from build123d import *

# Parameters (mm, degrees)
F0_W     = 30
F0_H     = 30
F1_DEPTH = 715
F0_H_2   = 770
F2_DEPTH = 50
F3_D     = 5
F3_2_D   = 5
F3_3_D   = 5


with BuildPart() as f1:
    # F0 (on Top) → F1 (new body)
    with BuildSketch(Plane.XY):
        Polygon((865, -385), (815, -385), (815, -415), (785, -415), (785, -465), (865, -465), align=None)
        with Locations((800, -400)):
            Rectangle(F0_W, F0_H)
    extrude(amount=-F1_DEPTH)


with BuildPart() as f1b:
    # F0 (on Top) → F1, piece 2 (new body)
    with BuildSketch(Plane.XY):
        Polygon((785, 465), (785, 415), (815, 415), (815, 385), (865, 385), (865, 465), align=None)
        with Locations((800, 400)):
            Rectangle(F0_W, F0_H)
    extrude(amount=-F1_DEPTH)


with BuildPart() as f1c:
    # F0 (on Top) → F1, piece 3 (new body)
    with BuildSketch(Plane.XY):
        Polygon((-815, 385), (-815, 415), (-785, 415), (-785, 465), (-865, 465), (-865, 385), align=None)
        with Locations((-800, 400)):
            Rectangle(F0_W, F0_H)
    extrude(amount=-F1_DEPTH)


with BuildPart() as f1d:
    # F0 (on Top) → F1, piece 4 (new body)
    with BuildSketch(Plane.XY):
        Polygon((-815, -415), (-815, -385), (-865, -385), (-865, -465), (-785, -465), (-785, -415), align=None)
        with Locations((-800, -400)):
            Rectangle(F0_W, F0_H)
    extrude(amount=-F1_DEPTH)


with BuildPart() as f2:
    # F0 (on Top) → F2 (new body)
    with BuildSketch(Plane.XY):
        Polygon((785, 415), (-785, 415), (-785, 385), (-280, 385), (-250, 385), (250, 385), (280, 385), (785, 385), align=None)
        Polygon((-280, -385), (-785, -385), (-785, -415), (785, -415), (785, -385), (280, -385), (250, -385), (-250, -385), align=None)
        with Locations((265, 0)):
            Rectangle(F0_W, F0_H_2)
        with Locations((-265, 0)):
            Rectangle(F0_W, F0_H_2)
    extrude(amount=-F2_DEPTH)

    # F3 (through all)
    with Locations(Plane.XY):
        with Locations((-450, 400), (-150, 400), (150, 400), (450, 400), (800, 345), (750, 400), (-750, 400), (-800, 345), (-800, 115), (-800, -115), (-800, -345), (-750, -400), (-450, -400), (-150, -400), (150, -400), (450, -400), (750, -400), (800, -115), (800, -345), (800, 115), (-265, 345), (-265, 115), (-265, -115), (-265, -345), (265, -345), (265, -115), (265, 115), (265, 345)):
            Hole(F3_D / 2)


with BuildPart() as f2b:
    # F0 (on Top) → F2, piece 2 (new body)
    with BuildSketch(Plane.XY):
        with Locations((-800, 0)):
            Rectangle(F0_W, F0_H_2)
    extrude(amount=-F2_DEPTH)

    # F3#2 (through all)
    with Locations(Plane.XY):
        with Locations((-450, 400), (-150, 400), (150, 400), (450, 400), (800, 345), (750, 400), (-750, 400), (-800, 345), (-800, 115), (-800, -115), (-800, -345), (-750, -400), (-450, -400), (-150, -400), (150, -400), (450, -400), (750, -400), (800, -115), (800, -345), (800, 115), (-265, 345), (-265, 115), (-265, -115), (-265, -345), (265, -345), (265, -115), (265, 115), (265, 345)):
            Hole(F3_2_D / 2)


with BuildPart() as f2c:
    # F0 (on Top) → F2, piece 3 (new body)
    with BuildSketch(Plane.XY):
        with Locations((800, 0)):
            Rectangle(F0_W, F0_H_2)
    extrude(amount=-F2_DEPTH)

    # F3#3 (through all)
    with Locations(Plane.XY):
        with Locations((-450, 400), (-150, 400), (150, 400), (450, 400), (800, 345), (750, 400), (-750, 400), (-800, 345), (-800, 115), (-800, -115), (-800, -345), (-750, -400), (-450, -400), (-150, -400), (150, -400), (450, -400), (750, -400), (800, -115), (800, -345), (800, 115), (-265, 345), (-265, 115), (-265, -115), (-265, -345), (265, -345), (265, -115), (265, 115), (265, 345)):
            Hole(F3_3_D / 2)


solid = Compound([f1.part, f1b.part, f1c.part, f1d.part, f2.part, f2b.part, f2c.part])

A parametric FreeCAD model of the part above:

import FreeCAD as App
import Part
import Sketcher

V = App.Vector
Q = App.Units.Quantity


def add_polygon(sketch, points):
    """Adds a closed chain of lines whose ends are joined by coincident constraints."""
    first, n = sketch.GeometryCount, len(points)
    for a, b in zip(points, points[1:] + points[:1]):
        sketch.addGeometry(Part.LineSegment(App.Vector(*a, 0), App.Vector(*b, 0)), False)
    for i in range(n):
        sketch.addConstraint(Sketcher.Constraint("Coincident", first + i, 2, first + (i + 1) % n, 1))

doc = App.newDocument("Part")
body = doc.addObject("PartDesign::Body", "Body")

# Sketch on XY plane
sketch1 = doc.addObject("Sketcher::SketchObject", "Sketch")
body.addObject(sketch1)
sketch1.AttachmentSupport = (doc.XY_Plane, [""])
sketch1.MapMode = "FlatFace"
add_polygon(sketch1, [(865, -385), (785, -385), (785, -465), (865, -465)])  # lines 0-3
sketch1.addConstraint(Sketcher.Constraint("Horizontal", 0))
sketch1.addConstraint(Sketcher.Constraint("Vertical", 1))
sketch1.addConstraint(Sketcher.Constraint("Horizontal", 2))
sketch1.addConstraint(Sketcher.Constraint("Vertical", 3))
sketch1.addConstraint(Sketcher.Constraint("Equal", 2, 1))
sketch1.addConstraint(Sketcher.Constraint("DistanceX", 0, 2, 0, 1, Q("80 mm")))
sketch1.addConstraint(Sketcher.Constraint("DistanceX", -1, 1, 0, 2, Q("785 mm")))
sketch1.addConstraint(Sketcher.Constraint("DistanceY", 0, 2, -1, 1, Q("385 mm")))
pad1 = doc.addObject("PartDesign::Pad", "Pad")
body.addObject(pad1)
pad1.Profile = sketch1
pad1.Length = 715
pad1.Reversed = True
body2 = doc.addObject("PartDesign::Body", "Body001")

# Sketch on XY plane
sketch2 = doc.addObject("Sketcher::SketchObject", "Sketch001")
body2.addObject(sketch2)
sketch2.AttachmentSupport = (doc.getObject("XY_Plane001"), [""])
sketch2.MapMode = "FlatFace"
add_polygon(sketch2, [(785, 465), (785, 385), (865, 385), (865, 465)])  # lines 0-3
sketch2.addConstraint(Sketcher.Constraint("Vertical", 0))
sketch2.addConstraint(Sketcher.Constraint("Horizontal", 1))
sketch2.addConstraint(Sketcher.Constraint("Vertical", 2))
sketch2.addConstraint(Sketcher.Constraint("Horizontal", 3))
sketch2.addConstraint(Sketcher.Constraint("Equal", 3, 0))
sketch2.addConstraint(Sketcher.Constraint("DistanceX", 1, 1, 1, 2, Q("80 mm")))
sketch2.addConstraint(Sketcher.Constraint("DistanceX", -1, 1, 0, 2, Q("785 mm")))
sketch2.addConstraint(Sketcher.Constraint("DistanceY", -1, 1, 0, 2, Q("385 mm")))
pad2 = doc.addObject("PartDesign::Pad", "Pad001")
body2.addObject(pad2)
pad2.Profile = sketch2
pad2.Length = 715
pad2.Reversed = True
body3 = doc.addObject("PartDesign::Body", "Body002")

# Sketch on XY plane
sketch3 = doc.addObject("Sketcher::SketchObject", "Sketch002")
body3.addObject(sketch3)
sketch3.AttachmentSupport = (doc.getObject("XY_Plane002"), [""])
sketch3.MapMode = "FlatFace"
add_polygon(sketch3, [(-785, 465), (-865, 465), (-865, 385), (-785, 385)])  # lines 0-3
sketch3.addConstraint(Sketcher.Constraint("Horizontal", 0))
sketch3.addConstraint(Sketcher.Constraint("Vertical", 1))
sketch3.addConstraint(Sketcher.Constraint("Horizontal", 2))
sketch3.addConstraint(Sketcher.Constraint("Vertical", 3))
sketch3.addConstraint(Sketcher.Constraint("Equal", 2, 1))
sketch3.addConstraint(Sketcher.Constraint("DistanceX", 0, 2, 0, 1, Q("80 mm")))
sketch3.addConstraint(Sketcher.Constraint("DistanceX", 0, 2, -1, 1, Q("865 mm")))
sketch3.addConstraint(Sketcher.Constraint("DistanceY", -1, 1, 0, 2, Q("465 mm")))
pad3 = doc.addObject("PartDesign::Pad", "Pad002")
body3.addObject(pad3)
pad3.Profile = sketch3
pad3.Length = 715
pad3.Reversed = True
body4 = doc.addObject("PartDesign::Body", "Body003")

# Sketch on XY plane
sketch4 = doc.addObject("Sketcher::SketchObject", "Sketch003")
body4.addObject(sketch4)
sketch4.AttachmentSupport = (doc.getObject("XY_Plane003"), [""])
sketch4.MapMode = "FlatFace"
add_polygon(sketch4, [(-865, -385), (-865, -465), (-785, -465), (-785, -385)])  # lines 0-3
sketch4.addConstraint(Sketcher.Constraint("Vertical", 0))
sketch4.addConstraint(Sketcher.Constraint("Horizontal", 1))
sketch4.addConstraint(Sketcher.Constraint("Vertical", 2))
sketch4.addConstraint(Sketcher.Constraint("Horizontal", 3))
sketch4.addConstraint(Sketcher.Constraint("Equal", 3, 0))
sketch4.addConstraint(Sketcher.Constraint("DistanceX", 1, 1, 1, 2, Q("80 mm")))
sketch4.addConstraint(Sketcher.Constraint("DistanceX", 0, 2, -1, 1, Q("865 mm")))
sketch4.addConstraint(Sketcher.Constraint("DistanceY", 0, 2, -1, 1, Q("465 mm")))
pad4 = doc.addObject("PartDesign::Pad", "Pad003")
body4.addObject(pad4)
pad4.Profile = sketch4
pad4.Length = 715
pad4.Reversed = True
body5 = doc.addObject("PartDesign::Body", "Body004")

# Sketch on XY plane
sketch5 = doc.addObject("Sketcher::SketchObject", "Sketch004")
body5.addObject(sketch5)
sketch5.AttachmentSupport = (doc.getObject("XY_Plane004"), [""])
sketch5.MapMode = "FlatFace"
add_polygon(sketch5, [(785, 415), (-785, 415), (-785, 385), (-280, 385), (-280, -385), (-785, -385), (-785, -415), (785, -415), (785, -385), (280, -385), (280, 385), (785, 385)])  # lines 0-11
add_polygon(sketch5, [(-250, 385), (250, 385), (250, -385), (-250, -385)])  # lines 12-15
sketch5.addConstraint(Sketcher.Constraint("Horizontal", 0))
sketch5.addConstraint(Sketcher.Constraint("Vertical", 1))
sketch5.addConstraint(Sketcher.Constraint("Horizontal", 2))
sketch5.addConstraint(Sketcher.Constraint("Vertical", 3))
sketch5.addConstraint(Sketcher.Constraint("Horizontal", 4))
sketch5.addConstraint(Sketcher.Constraint("Vertical", 5))
sketch5.addConstraint(Sketcher.Constraint("Horizontal", 6))
sketch5.addConstraint(Sketcher.Constraint("Vertical", 7))
sketch5.addConstraint(Sketcher.Constraint("Horizontal", 8))
sketch5.addConstraint(Sketcher.Constraint("Vertical", 9))
sketch5.addConstraint(Sketcher.Constraint("Horizontal", 10))
sketch5.addConstraint(Sketcher.Constraint("Vertical", 11))
sketch5.addConstraint(Sketcher.Constraint("Horizontal", 12))
sketch5.addConstraint(Sketcher.Constraint("Vertical", 13))
sketch5.addConstraint(Sketcher.Constraint("Horizontal", 14))
sketch5.addConstraint(Sketcher.Constraint("Vertical", 15))
sketch5.addConstraint(Sketcher.Constraint("Symmetric", 0, 2, 6, 2, -1, 1))
sketch5.addConstraint(Sketcher.Constraint("Symmetric", 2, 2, 8, 2, -1, 1))
sketch5.addConstraint(Sketcher.Constraint("Symmetric", 4, 2, 10, 2, -1, 1))
sketch5.addConstraint(Sketcher.Constraint("Symmetric", 12, 2, 14, 2, -1, 1))
sketch5.addConstraint(Sketcher.Constraint("Symmetric", 4, 2, 7, 2, -2))
sketch5.addConstraint(Sketcher.Constraint("Horizontal", 10, 2, 12, 2))
sketch5.addConstraint(Sketcher.Constraint("DistanceX", 0, 2, 0, 1, Q("1570 mm")))
sketch5.addConstraint(Sketcher.Constraint("DistanceX", 2, 1, 2, 2, Q("505 mm")))
sketch5.addConstraint(Sketcher.Constraint("DistanceX", 12, 1, 12, 2, Q("500 mm")))
sketch5.addConstraint(Sketcher.Constraint("DistanceY", 1, 2, 1, 1, Q("30 mm")))
sketch5.addConstraint(Sketcher.Constraint("DistanceY", 3, 2, 3, 1, Q("770 mm")))
pad5 = doc.addObject("PartDesign::Pad", "Pad004")
body5.addObject(pad5)
pad5.Profile = sketch5
pad5.Length = 50
pad5.Reversed = True

# Sketch on XY plane
sketch6 = doc.addObject("Sketcher::SketchObject", "Sketch005")
body5.addObject(sketch6)
sketch6.AttachmentSupport = (doc.getObject("XY_Plane004"), [""])
sketch6.MapMode = "FlatFace"
sketch6.addGeometry(Part.Circle(V(-450, 400, 0), V(0, 0, 1), 2.5), False)
sketch6.addGeometry(Part.Circle(V(-150, 400, 0), V(0, 0, 1), 2.5), False)
sketch6.addGeometry(Part.Circle(V(150, 400, 0), V(0, 0, 1), 2.5), False)
sketch6.addGeometry(Part.Circle(V(450, 400, 0), V(0, 0, 1), 2.5), False)
sketch6.addGeometry(Part.Circle(V(800, 345, 0), V(0, 0, 1), 2.5), False)
sketch6.addGeometry(Part.Circle(V(750, 400, 0), V(0, 0, 1), 2.5), False)
sketch6.addGeometry(Part.Circle(V(-750, 400, 0), V(0, 0, 1), 2.5), False)
sketch6.addGeometry(Part.Circle(V(-800, 345, 0), V(0, 0, 1), 2.5), False)
sketch6.addGeometry(Part.Circle(V(-800, 115, 0), V(0, 0, 1), 2.5), False)
sketch6.addGeometry(Part.Circle(V(-800, -115, 0), V(0, 0, 1), 2.5), False)
sketch6.addGeometry(Part.Circle(V(-800, -345, 0), V(0, 0, 1), 2.5), False)
sketch6.addGeometry(Part.Circle(V(-750, -400, 0), V(0, 0, 1), 2.5), False)
sketch6.addGeometry(Part.Circle(V(-450, -400, 0), V(0, 0, 1), 2.5), False)
sketch6.addGeometry(Part.Circle(V(-150, -400, 0), V(0, 0, 1), 2.5), False)
sketch6.addGeometry(Part.Circle(V(150, -400, 0), V(0, 0, 1), 2.5), False)
sketch6.addGeometry(Part.Circle(V(450, -400, 0), V(0, 0, 1), 2.5), False)
sketch6.addGeometry(Part.Circle(V(750, -400, 0), V(0, 0, 1), 2.5), False)
sketch6.addGeometry(Part.Circle(V(800, -115, 0), V(0, 0, 1), 2.5), False)
sketch6.addGeometry(Part.Circle(V(800, -345, 0), V(0, 0, 1), 2.5), False)
sketch6.addGeometry(Part.Circle(V(800, 115, 0), V(0, 0, 1), 2.5), False)
sketch6.addGeometry(Part.Circle(V(-265, 345, 0), V(0, 0, 1), 2.5), False)
sketch6.addGeometry(Part.Circle(V(-265, 115, 0), V(0, 0, 1), 2.5), False)
sketch6.addGeometry(Part.Circle(V(-265, -115, 0), V(0, 0, 1), 2.5), False)
sketch6.addGeometry(Part.Circle(V(-265, -345, 0), V(0, 0, 1), 2.5), False)
sketch6.addGeometry(Part.Circle(V(265, -345, 0), V(0, 0, 1), 2.5), False)
sketch6.addGeometry(Part.Circle(V(265, -115, 0), V(0, 0, 1), 2.5), False)
sketch6.addGeometry(Part.Circle(V(265, 115, 0), V(0, 0, 1), 2.5), False)
sketch6.addGeometry(Part.Circle(V(265, 345, 0), V(0, 0, 1), 2.5), False)
sketch6.addConstraint(Sketcher.Constraint("Equal", 0, 1))
sketch6.addConstraint(Sketcher.Constraint("Equal", 1, 2))
sketch6.addConstraint(Sketcher.Constraint("Equal", 2, 3))
sketch6.addConstraint(Sketcher.Constraint("Equal", 3, 4))
sketch6.addConstraint(Sketcher.Constraint("Equal", 4, 5))
sketch6.addConstraint(Sketcher.Constraint("Equal", 5, 6))
sketch6.addConstraint(Sketcher.Constraint("Equal", 6, 7))
sketch6.addConstraint(Sketcher.Constraint("Equal", 7, 8))
sketch6.addConstraint(Sketcher.Constraint("Equal", 8, 9))
sketch6.addConstraint(Sketcher.Constraint("Equal", 9, 10))
sketch6.addConstraint(Sketcher.Constraint("Equal", 10, 11))
sketch6.addConstraint(Sketcher.Constraint("Equal", 11, 12))
sketch6.addConstraint(Sketcher.Constraint("Equal", 12, 13))
sketch6.addConstraint(Sketcher.Constraint("Equal", 13, 14))
sketch6.addConstraint(Sketcher.Constraint("Equal", 14, 15))
sketch6.addConstraint(Sketcher.Constraint("Equal", 15, 16))
sketch6.addConstraint(Sketcher.Constraint("Equal", 16, 17))
sketch6.addConstraint(Sketcher.Constraint("Equal", 17, 18))
sketch6.addConstraint(Sketcher.Constraint("Equal", 18, 19))
sketch6.addConstraint(Sketcher.Constraint("Equal", 19, 20))
sketch6.addConstraint(Sketcher.Constraint("Equal", 20, 21))
sketch6.addConstraint(Sketcher.Constraint("Equal", 21, 22))
sketch6.addConstraint(Sketcher.Constraint("Equal", 22, 23))
sketch6.addConstraint(Sketcher.Constraint("Equal", 23, 24))
sketch6.addConstraint(Sketcher.Constraint("Equal", 24, 25))
sketch6.addConstraint(Sketcher.Constraint("Equal", 25, 26))
sketch6.addConstraint(Sketcher.Constraint("Equal", 26, 27))
sketch6.addConstraint(Sketcher.Constraint("Symmetric", 4, 3, 10, 3, -1, 1))
sketch6.addConstraint(Sketcher.Constraint("Symmetric", 5, 3, 11, 3, -1, 1))
sketch6.addConstraint(Sketcher.Constraint("Symmetric", 3, 3, 12, 3, -1, 1))
sketch6.addConstraint(Sketcher.Constraint("Symmetric", 2, 3, 13, 3, -1, 1))
sketch6.addConstraint(Sketcher.Constraint("Symmetric", 1, 3, 14, 3, -1, 1))
sketch6.addConstraint(Sketcher.Constraint("Symmetric", 0, 3, 15, 3, -1, 1))
sketch6.addConstraint(Sketcher.Constraint("Symmetric", 6, 3, 16, 3, -1, 1))
sketch6.addConstraint(Sketcher.Constraint("Symmetric", 8, 3, 17, 3, -1, 1))
sketch6.addConstraint(Sketcher.Constraint("Symmetric", 7, 3, 18, 3, -1, 1))
sketch6.addConstraint(Sketcher.Constraint("Symmetric", 9, 3, 19, 3, -1, 1))
sketch6.addConstraint(Sketcher.Constraint("Symmetric", 20, 3, 24, 3, -1, 1))
sketch6.addConstraint(Sketcher.Constraint("Symmetric", 21, 3, 25, 3, -1, 1))
sketch6.addConstraint(Sketcher.Constraint("Symmetric", 22, 3, 26, 3, -1, 1))
sketch6.addConstraint(Sketcher.Constraint("Symmetric", 23, 3, 27, 3, -1, 1))
sketch6.addConstraint(Sketcher.Constraint("Symmetric", 1, 3, 2, 3, -2))
sketch6.addConstraint(Sketcher.Constraint("Symmetric", 0, 3, 3, 3, -2))
sketch6.addConstraint(Sketcher.Constraint("Symmetric", 5, 3, 6, 3, -2))
sketch6.addConstraint(Sketcher.Constraint("Symmetric", 4, 3, 7, 3, -2))
sketch6.addConstraint(Sketcher.Constraint("Symmetric", 9, 3, 17, 3, -2))
sketch6.addConstraint(Sketcher.Constraint("Symmetric", 23, 3, 24, 3, -2))
sketch6.addConstraint(Sketcher.Constraint("Symmetric", 22, 3, 25, 3, -2))
sketch6.addConstraint(Sketcher.Constraint("Horizontal", 0, 3, 1, 3))
sketch6.addConstraint(Sketcher.Constraint("Horizontal", 3, 3, 5, 3))
sketch6.addConstraint(Sketcher.Constraint("Horizontal", 7, 3, 20, 3))
sketch6.addConstraint(Sketcher.Constraint("Horizontal", 19, 3, 21, 3))
sketch6.addConstraint(Sketcher.Constraint("Vertical", 7, 3, 8, 3))
sketch6.addConstraint(Sketcher.Constraint("Vertical", 20, 3, 21, 3))
sketch6.addConstraint(Sketcher.Constraint("Diameter", 0, Q("5 mm")))
sketch6.addConstraint(Sketcher.Constraint("DistanceX", 0, 3, -1, 1, Q("450 mm")))
sketch6.addConstraint(Sketcher.Constraint("DistanceY", -1, 1, 0, 3, Q("400 mm")))
sketch6.addConstraint(Sketcher.Constraint("DistanceX", 1, 3, -1, 1, Q("150 mm")))
sketch6.addConstraint(Sketcher.Constraint("DistanceX", -1, 1, 4, 3, Q("800 mm")))
sketch6.addConstraint(Sketcher.Constraint("DistanceY", -1, 1, 4, 3, Q("345 mm")))
sketch6.addConstraint(Sketcher.Constraint("DistanceX", -1, 1, 5, 3, Q("750 mm")))
sketch6.addConstraint(Sketcher.Constraint("DistanceY", -1, 1, 8, 3, Q("115 mm")))
sketch6.addConstraint(Sketcher.Constraint("DistanceX", 20, 3, -1, 1, Q("265 mm")))
doc.recompute()
hole = doc.addObject("PartDesign::Hole", "Hole")
body5.addObject(hole)
hole.Profile = sketch6
hole.ThreadType = "None"
hole.Diameter = 5
hole.DepthType = "ThroughAll"
body6 = doc.addObject("PartDesign::Body", "Body005")

# Sketch on XY plane
sketch7 = doc.addObject("Sketcher::SketchObject", "Sketch006")
body6.addObject(sketch7)
sketch7.AttachmentSupport = (doc.getObject("XY_Plane005"), [""])
sketch7.MapMode = "FlatFace"
add_polygon(sketch7, [(-815, 385), (-815, -385), (-785, -385), (-785, 385)])  # lines 0-3
sketch7.addConstraint(Sketcher.Constraint("Vertical", 0))
sketch7.addConstraint(Sketcher.Constraint("Horizontal", 1))
sketch7.addConstraint(Sketcher.Constraint("Vertical", 2))
sketch7.addConstraint(Sketcher.Constraint("Horizontal", 3))
sketch7.addConstraint(Sketcher.Constraint("DistanceX", 1, 1, 1, 2, Q("30 mm")))
sketch7.addConstraint(Sketcher.Constraint("DistanceY", 0, 2, 0, 1, Q("770 mm")))
sketch7.addConstraint(Sketcher.Constraint("DistanceX", 0, 2, -1, 1, Q("815 mm")))
sketch7.addConstraint(Sketcher.Constraint("DistanceY", 0, 2, -1, 1, Q("385 mm")))
pad6 = doc.addObject("PartDesign::Pad", "Pad005")
body6.addObject(pad6)
pad6.Profile = sketch7
pad6.Length = 50
pad6.Reversed = True

# Sketch on XY plane
sketch8 = doc.addObject("Sketcher::SketchObject", "Sketch007")
body6.addObject(sketch8)
sketch8.AttachmentSupport = (doc.getObject("XY_Plane005"), [""])
sketch8.MapMode = "FlatFace"
sketch8.addGeometry(Part.Circle(V(-450, 400, 0), V(0, 0, 1), 2.5), False)
sketch8.addGeometry(Part.Circle(V(-150, 400, 0), V(0, 0, 1), 2.5), False)
sketch8.addGeometry(Part.Circle(V(150, 400, 0), V(0, 0, 1), 2.5), False)
sketch8.addGeometry(Part.Circle(V(450, 400, 0), V(0, 0, 1), 2.5), False)
sketch8.addGeometry(Part.Circle(V(800, 345, 0), V(0, 0, 1), 2.5), False)
sketch8.addGeometry(Part.Circle(V(750, 400, 0), V(0, 0, 1), 2.5), False)
sketch8.addGeometry(Part.Circle(V(-750, 400, 0), V(0, 0, 1), 2.5), False)
sketch8.addGeometry(Part.Circle(V(-800, 345, 0), V(0, 0, 1), 2.5), False)
sketch8.addGeometry(Part.Circle(V(-800, 115, 0), V(0, 0, 1), 2.5), False)
sketch8.addGeometry(Part.Circle(V(-800, -115, 0), V(0, 0, 1), 2.5), False)
sketch8.addGeometry(Part.Circle(V(-800, -345, 0), V(0, 0, 1), 2.5), False)
sketch8.addGeometry(Part.Circle(V(-750, -400, 0), V(0, 0, 1), 2.5), False)
sketch8.addGeometry(Part.Circle(V(-450, -400, 0), V(0, 0, 1), 2.5), False)
sketch8.addGeometry(Part.Circle(V(-150, -400, 0), V(0, 0, 1), 2.5), False)
sketch8.addGeometry(Part.Circle(V(150, -400, 0), V(0, 0, 1), 2.5), False)
sketch8.addGeometry(Part.Circle(V(450, -400, 0), V(0, 0, 1), 2.5), False)
sketch8.addGeometry(Part.Circle(V(750, -400, 0), V(0, 0, 1), 2.5), False)
sketch8.addGeometry(Part.Circle(V(800, -115, 0), V(0, 0, 1), 2.5), False)
sketch8.addGeometry(Part.Circle(V(800, -345, 0), V(0, 0, 1), 2.5), False)
sketch8.addGeometry(Part.Circle(V(800, 115, 0), V(0, 0, 1), 2.5), False)
sketch8.addGeometry(Part.Circle(V(-265, 345, 0), V(0, 0, 1), 2.5), False)
sketch8.addGeometry(Part.Circle(V(-265, 115, 0), V(0, 0, 1), 2.5), False)
sketch8.addGeometry(Part.Circle(V(-265, -115, 0), V(0, 0, 1), 2.5), False)
sketch8.addGeometry(Part.Circle(V(-265, -345, 0), V(0, 0, 1), 2.5), False)
sketch8.addGeometry(Part.Circle(V(265, -345, 0), V(0, 0, 1), 2.5), False)
sketch8.addGeometry(Part.Circle(V(265, -115, 0), V(0, 0, 1), 2.5), False)
sketch8.addGeometry(Part.Circle(V(265, 115, 0), V(0, 0, 1), 2.5), False)
sketch8.addGeometry(Part.Circle(V(265, 345, 0), V(0, 0, 1), 2.5), False)
sketch8.addConstraint(Sketcher.Constraint("Equal", 0, 1))
sketch8.addConstraint(Sketcher.Constraint("Equal", 1, 2))
sketch8.addConstraint(Sketcher.Constraint("Equal", 2, 3))
sketch8.addConstraint(Sketcher.Constraint("Equal", 3, 4))
sketch8.addConstraint(Sketcher.Constraint("Equal", 4, 5))
sketch8.addConstraint(Sketcher.Constraint("Equal", 5, 6))
sketch8.addConstraint(Sketcher.Constraint("Equal", 6, 7))
sketch8.addConstraint(Sketcher.Constraint("Equal", 7, 8))
sketch8.addConstraint(Sketcher.Constraint("Equal", 8, 9))
sketch8.addConstraint(Sketcher.Constraint("Equal", 9, 10))
sketch8.addConstraint(Sketcher.Constraint("Equal", 10, 11))
sketch8.addConstraint(Sketcher.Constraint("Equal", 11, 12))
sketch8.addConstraint(Sketcher.Constraint("Equal", 12, 13))
sketch8.addConstraint(Sketcher.Constraint("Equal", 13, 14))
sketch8.addConstraint(Sketcher.Constraint("Equal", 14, 15))
sketch8.addConstraint(Sketcher.Constraint("Equal", 15, 16))
sketch8.addConstraint(Sketcher.Constraint("Equal", 16, 17))
sketch8.addConstraint(Sketcher.Constraint("Equal", 17, 18))
sketch8.addConstraint(Sketcher.Constraint("Equal", 18, 19))
sketch8.addConstraint(Sketcher.Constraint("Equal", 19, 20))
sketch8.addConstraint(Sketcher.Constraint("Equal", 20, 21))
sketch8.addConstraint(Sketcher.Constraint("Equal", 21, 22))
sketch8.addConstraint(Sketcher.Constraint("Equal", 22, 23))
sketch8.addConstraint(Sketcher.Constraint("Equal", 23, 24))
sketch8.addConstraint(Sketcher.Constraint("Equal", 24, 25))
sketch8.addConstraint(Sketcher.Constraint("Equal", 25, 26))
sketch8.addConstraint(Sketcher.Constraint("Equal", 26, 27))
sketch8.addConstraint(Sketcher.Constraint("Symmetric", 4, 3, 10, 3, -1, 1))
sketch8.addConstraint(Sketcher.Constraint("Symmetric", 5, 3, 11, 3, -1, 1))
sketch8.addConstraint(Sketcher.Constraint("Symmetric", 3, 3, 12, 3, -1, 1))
sketch8.addConstraint(Sketcher.Constraint("Symmetric", 2, 3, 13, 3, -1, 1))
sketch8.addConstraint(Sketcher.Constraint("Symmetric", 1, 3, 14, 3, -1, 1))
sketch8.addConstraint(Sketcher.Constraint("Symmetric", 0, 3, 15, 3, -1, 1))
sketch8.addConstraint(Sketcher.Constraint("Symmetric", 6, 3, 16, 3, -1, 1))
sketch8.addConstraint(Sketcher.Constraint("Symmetric", 8, 3, 17, 3, -1, 1))
sketch8.addConstraint(Sketcher.Constraint("Symmetric", 7, 3, 18, 3, -1, 1))
sketch8.addConstraint(Sketcher.Constraint("Symmetric", 9, 3, 19, 3, -1, 1))
sketch8.addConstraint(Sketcher.Constraint("Symmetric", 20, 3, 24, 3, -1, 1))
sketch8.addConstraint(Sketcher.Constraint("Symmetric", 21, 3, 25, 3, -1, 1))
sketch8.addConstraint(Sketcher.Constraint("Symmetric", 22, 3, 26, 3, -1, 1))
sketch8.addConstraint(Sketcher.Constraint("Symmetric", 23, 3, 27, 3, -1, 1))
sketch8.addConstraint(Sketcher.Constraint("Symmetric", 1, 3, 2, 3, -2))
sketch8.addConstraint(Sketcher.Constraint("Symmetric", 0, 3, 3, 3, -2))
sketch8.addConstraint(Sketcher.Constraint("Symmetric", 5, 3, 6, 3, -2))
sketch8.addConstraint(Sketcher.Constraint("Symmetric", 4, 3, 7, 3, -2))
sketch8.addConstraint(Sketcher.Constraint("Symmetric", 9, 3, 17, 3, -2))
sketch8.addConstraint(Sketcher.Constraint("Symmetric", 23, 3, 24, 3, -2))
sketch8.addConstraint(Sketcher.Constraint("Symmetric", 22, 3, 25, 3, -2))
sketch8.addConstraint(Sketcher.Constraint("Horizontal", 0, 3, 1, 3))
sketch8.addConstraint(Sketcher.Constraint("Horizontal", 3, 3, 5, 3))
sketch8.addConstraint(Sketcher.Constraint("Horizontal", 7, 3, 20, 3))
sketch8.addConstraint(Sketcher.Constraint("Horizontal", 19, 3, 21, 3))
sketch8.addConstraint(Sketcher.Constraint("Vertical", 7, 3, 8, 3))
sketch8.addConstraint(Sketcher.Constraint("Vertical", 20, 3, 21, 3))
sketch8.addConstraint(Sketcher.Constraint("Diameter", 0, Q("5 mm")))
sketch8.addConstraint(Sketcher.Constraint("DistanceX", 0, 3, -1, 1, Q("450 mm")))
sketch8.addConstraint(Sketcher.Constraint("DistanceY", -1, 1, 0, 3, Q("400 mm")))
sketch8.addConstraint(Sketcher.Constraint("DistanceX", 1, 3, -1, 1, Q("150 mm")))
sketch8.addConstraint(Sketcher.Constraint("DistanceX", -1, 1, 4, 3, Q("800 mm")))
sketch8.addConstraint(Sketcher.Constraint("DistanceY", -1, 1, 4, 3, Q("345 mm")))
sketch8.addConstraint(Sketcher.Constraint("DistanceX", -1, 1, 5, 3, Q("750 mm")))
sketch8.addConstraint(Sketcher.Constraint("DistanceY", -1, 1, 8, 3, Q("115 mm")))
sketch8.addConstraint(Sketcher.Constraint("DistanceX", 20, 3, -1, 1, Q("265 mm")))
doc.recompute()
hole2 = doc.addObject("PartDesign::Hole", "Hole001")
body6.addObject(hole2)
hole2.Profile = sketch8
hole2.ThreadType = "None"
hole2.Diameter = 5
hole2.DepthType = "ThroughAll"
body7 = doc.addObject("PartDesign::Body", "Body006")

# Sketch on XY plane
sketch9 = doc.addObject("Sketcher::SketchObject", "Sketch008")
body7.addObject(sketch9)
sketch9.AttachmentSupport = (doc.getObject("XY_Plane006"), [""])
sketch9.MapMode = "FlatFace"
add_polygon(sketch9, [(785, 385), (785, -385), (815, -385), (815, 385)])  # lines 0-3
sketch9.addConstraint(Sketcher.Constraint("Vertical", 0))
sketch9.addConstraint(Sketcher.Constraint("Horizontal", 1))
sketch9.addConstraint(Sketcher.Constraint("Vertical", 2))
sketch9.addConstraint(Sketcher.Constraint("Horizontal", 3))
sketch9.addConstraint(Sketcher.Constraint("DistanceX", 1, 1, 1, 2, Q("30 mm")))
sketch9.addConstraint(Sketcher.Constraint("DistanceY", 0, 2, 0, 1, Q("770 mm")))
sketch9.addConstraint(Sketcher.Constraint("DistanceX", -1, 1, 0, 2, Q("785 mm")))
sketch9.addConstraint(Sketcher.Constraint("DistanceY", 0, 2, -1, 1, Q("385 mm")))
pad7 = doc.addObject("PartDesign::Pad", "Pad006")
body7.addObject(pad7)
pad7.Profile = sketch9
pad7.Length = 50
pad7.Reversed = True

# Sketch on XY plane
sketch10 = doc.addObject("Sketcher::SketchObject", "Sketch009")
body7.addObject(sketch10)
sketch10.AttachmentSupport = (doc.getObject("XY_Plane006"), [""])
sketch10.MapMode = "FlatFace"
sketch10.addGeometry(Part.Circle(V(-450, 400, 0), V(0, 0, 1), 2.5), False)
sketch10.addGeometry(Part.Circle(V(-150, 400, 0), V(0, 0, 1), 2.5), False)
sketch10.addGeometry(Part.Circle(V(150, 400, 0), V(0, 0, 1), 2.5), False)
sketch10.addGeometry(Part.Circle(V(450, 400, 0), V(0, 0, 1), 2.5), False)
sketch10.addGeometry(Part.Circle(V(800, 345, 0), V(0, 0, 1), 2.5), False)
sketch10.addGeometry(Part.Circle(V(750, 400, 0), V(0, 0, 1), 2.5), False)
sketch10.addGeometry(Part.Circle(V(-750, 400, 0), V(0, 0, 1), 2.5), False)
sketch10.addGeometry(Part.Circle(V(-800, 345, 0), V(0, 0, 1), 2.5), False)
sketch10.addGeometry(Part.Circle(V(-800, 115, 0), V(0, 0, 1), 2.5), False)
sketch10.addGeometry(Part.Circle(V(-800, -115, 0), V(0, 0, 1), 2.5), False)
sketch10.addGeometry(Part.Circle(V(-800, -345, 0), V(0, 0, 1), 2.5), False)
sketch10.addGeometry(Part.Circle(V(-750, -400, 0), V(0, 0, 1), 2.5), False)
sketch10.addGeometry(Part.Circle(V(-450, -400, 0), V(0, 0, 1), 2.5), False)
sketch10.addGeometry(Part.Circle(V(-150, -400, 0), V(0, 0, 1), 2.5), False)
sketch10.addGeometry(Part.Circle(V(150, -400, 0), V(0, 0, 1), 2.5), False)
sketch10.addGeometry(Part.Circle(V(450, -400, 0), V(0, 0, 1), 2.5), False)
sketch10.addGeometry(Part.Circle(V(750, -400, 0), V(0, 0, 1), 2.5), False)
sketch10.addGeometry(Part.Circle(V(800, -115, 0), V(0, 0, 1), 2.5), False)
sketch10.addGeometry(Part.Circle(V(800, -345, 0), V(0, 0, 1), 2.5), False)
sketch10.addGeometry(Part.Circle(V(800, 115, 0), V(0, 0, 1), 2.5), False)
sketch10.addGeometry(Part.Circle(V(-265, 345, 0), V(0, 0, 1), 2.5), False)
sketch10.addGeometry(Part.Circle(V(-265, 115, 0), V(0, 0, 1), 2.5), False)
sketch10.addGeometry(Part.Circle(V(-265, -115, 0), V(0, 0, 1), 2.5), False)
sketch10.addGeometry(Part.Circle(V(-265, -345, 0), V(0, 0, 1), 2.5), False)
sketch10.addGeometry(Part.Circle(V(265, -345, 0), V(0, 0, 1), 2.5), False)
sketch10.addGeometry(Part.Circle(V(265, -115, 0), V(0, 0, 1), 2.5), False)
sketch10.addGeometry(Part.Circle(V(265, 115, 0), V(0, 0, 1), 2.5), False)
sketch10.addGeometry(Part.Circle(V(265, 345, 0), V(0, 0, 1), 2.5), False)
sketch10.addConstraint(Sketcher.Constraint("Equal", 0, 1))
sketch10.addConstraint(Sketcher.Constraint("Equal", 1, 2))
sketch10.addConstraint(Sketcher.Constraint("Equal", 2, 3))
sketch10.addConstraint(Sketcher.Constraint("Equal", 3, 4))
sketch10.addConstraint(Sketcher.Constraint("Equal", 4, 5))
sketch10.addConstraint(Sketcher.Constraint("Equal", 5, 6))
sketch10.addConstraint(Sketcher.Constraint("Equal", 6, 7))
sketch10.addConstraint(Sketcher.Constraint("Equal", 7, 8))
sketch10.addConstraint(Sketcher.Constraint("Equal", 8, 9))
sketch10.addConstraint(Sketcher.Constraint("Equal", 9, 10))
sketch10.addConstraint(Sketcher.Constraint("Equal", 10, 11))
sketch10.addConstraint(Sketcher.Constraint("Equal", 11, 12))
sketch10.addConstraint(Sketcher.Constraint("Equal", 12, 13))
sketch10.addConstraint(Sketcher.Constraint("Equal", 13, 14))
sketch10.addConstraint(Sketcher.Constraint("Equal", 14, 15))
sketch10.addConstraint(Sketcher.Constraint("Equal", 15, 16))
sketch10.addConstraint(Sketcher.Constraint("Equal", 16, 17))
sketch10.addConstraint(Sketcher.Constraint("Equal", 17, 18))
sketch10.addConstraint(Sketcher.Constraint("Equal", 18, 19))
sketch10.addConstraint(Sketcher.Constraint("Equal", 19, 20))
sketch10.addConstraint(Sketcher.Constraint("Equal", 20, 21))
sketch10.addConstraint(Sketcher.Constraint("Equal", 21, 22))
sketch10.addConstraint(Sketcher.Constraint("Equal", 22, 23))
sketch10.addConstraint(Sketcher.Constraint("Equal", 23, 24))
sketch10.addConstraint(Sketcher.Constraint("Equal", 24, 25))
sketch10.addConstraint(Sketcher.Constraint("Equal", 25, 26))
sketch10.addConstraint(Sketcher.Constraint("Equal", 26, 27))
sketch10.addConstraint(Sketcher.Constraint("Symmetric", 4, 3, 10, 3, -1, 1))
sketch10.addConstraint(Sketcher.Constraint("Symmetric", 5, 3, 11, 3, -1, 1))
sketch10.addConstraint(Sketcher.Constraint("Symmetric", 3, 3, 12, 3, -1, 1))
sketch10.addConstraint(Sketcher.Constraint("Symmetric", 2, 3, 13, 3, -1, 1))
sketch10.addConstraint(Sketcher.Constraint("Symmetric", 1, 3, 14, 3, -1, 1))
sketch10.addConstraint(Sketcher.Constraint("Symmetric", 0, 3, 15, 3, -1, 1))
sketch10.addConstraint(Sketcher.Constraint("Symmetric", 6, 3, 16, 3, -1, 1))
sketch10.addConstraint(Sketcher.Constraint("Symmetric", 8, 3, 17, 3, -1, 1))
sketch10.addConstraint(Sketcher.Constraint("Symmetric", 7, 3, 18, 3, -1, 1))
sketch10.addConstraint(Sketcher.Constraint("Symmetric", 9, 3, 19, 3, -1, 1))
sketch10.addConstraint(Sketcher.Constraint("Symmetric", 20, 3, 24, 3, -1, 1))
sketch10.addConstraint(Sketcher.Constraint("Symmetric", 21, 3, 25, 3, -1, 1))
sketch10.addConstraint(Sketcher.Constraint("Symmetric", 22, 3, 26, 3, -1, 1))
sketch10.addConstraint(Sketcher.Constraint("Symmetric", 23, 3, 27, 3, -1, 1))
sketch10.addConstraint(Sketcher.Constraint("Symmetric", 1, 3, 2, 3, -2))
sketch10.addConstraint(Sketcher.Constraint("Symmetric", 0, 3, 3, 3, -2))
sketch10.addConstraint(Sketcher.Constraint("Symmetric", 5, 3, 6, 3, -2))
sketch10.addConstraint(Sketcher.Constraint("Symmetric", 4, 3, 7, 3, -2))
sketch10.addConstraint(Sketcher.Constraint("Symmetric", 9, 3, 17, 3, -2))
sketch10.addConstraint(Sketcher.Constraint("Symmetric", 23, 3, 24, 3, -2))
sketch10.addConstraint(Sketcher.Constraint("Symmetric", 22, 3, 25, 3, -2))
sketch10.addConstraint(Sketcher.Constraint("Horizontal", 0, 3, 1, 3))
sketch10.addConstraint(Sketcher.Constraint("Horizontal", 3, 3, 5, 3))
sketch10.addConstraint(Sketcher.Constraint("Horizontal", 7, 3, 20, 3))
sketch10.addConstraint(Sketcher.Constraint("Horizontal", 19, 3, 21, 3))
sketch10.addConstraint(Sketcher.Constraint("Vertical", 7, 3, 8, 3))
sketch10.addConstraint(Sketcher.Constraint("Vertical", 20, 3, 21, 3))
sketch10.addConstraint(Sketcher.Constraint("Diameter", 0, Q("5 mm")))
sketch10.addConstraint(Sketcher.Constraint("DistanceX", 0, 3, -1, 1, Q("450 mm")))
sketch10.addConstraint(Sketcher.Constraint("DistanceY", -1, 1, 0, 3, Q("400 mm")))
sketch10.addConstraint(Sketcher.Constraint("DistanceX", 1, 3, -1, 1, Q("150 mm")))
sketch10.addConstraint(Sketcher.Constraint("DistanceX", -1, 1, 4, 3, Q("800 mm")))
sketch10.addConstraint(Sketcher.Constraint("DistanceY", -1, 1, 4, 3, Q("345 mm")))
sketch10.addConstraint(Sketcher.Constraint("DistanceX", -1, 1, 5, 3, Q("750 mm")))
sketch10.addConstraint(Sketcher.Constraint("DistanceY", -1, 1, 8, 3, Q("115 mm")))
sketch10.addConstraint(Sketcher.Constraint("DistanceX", 20, 3, -1, 1, Q("265 mm")))
doc.recompute()
hole3 = doc.addObject("PartDesign::Hole", "Hole002")
body7.addObject(hole3)
hole3.Profile = sketch10
hole3.ThreadType = "None"
hole3.Diameter = 5
hole3.DepthType = "ThroughAll"

doc.recompute()
